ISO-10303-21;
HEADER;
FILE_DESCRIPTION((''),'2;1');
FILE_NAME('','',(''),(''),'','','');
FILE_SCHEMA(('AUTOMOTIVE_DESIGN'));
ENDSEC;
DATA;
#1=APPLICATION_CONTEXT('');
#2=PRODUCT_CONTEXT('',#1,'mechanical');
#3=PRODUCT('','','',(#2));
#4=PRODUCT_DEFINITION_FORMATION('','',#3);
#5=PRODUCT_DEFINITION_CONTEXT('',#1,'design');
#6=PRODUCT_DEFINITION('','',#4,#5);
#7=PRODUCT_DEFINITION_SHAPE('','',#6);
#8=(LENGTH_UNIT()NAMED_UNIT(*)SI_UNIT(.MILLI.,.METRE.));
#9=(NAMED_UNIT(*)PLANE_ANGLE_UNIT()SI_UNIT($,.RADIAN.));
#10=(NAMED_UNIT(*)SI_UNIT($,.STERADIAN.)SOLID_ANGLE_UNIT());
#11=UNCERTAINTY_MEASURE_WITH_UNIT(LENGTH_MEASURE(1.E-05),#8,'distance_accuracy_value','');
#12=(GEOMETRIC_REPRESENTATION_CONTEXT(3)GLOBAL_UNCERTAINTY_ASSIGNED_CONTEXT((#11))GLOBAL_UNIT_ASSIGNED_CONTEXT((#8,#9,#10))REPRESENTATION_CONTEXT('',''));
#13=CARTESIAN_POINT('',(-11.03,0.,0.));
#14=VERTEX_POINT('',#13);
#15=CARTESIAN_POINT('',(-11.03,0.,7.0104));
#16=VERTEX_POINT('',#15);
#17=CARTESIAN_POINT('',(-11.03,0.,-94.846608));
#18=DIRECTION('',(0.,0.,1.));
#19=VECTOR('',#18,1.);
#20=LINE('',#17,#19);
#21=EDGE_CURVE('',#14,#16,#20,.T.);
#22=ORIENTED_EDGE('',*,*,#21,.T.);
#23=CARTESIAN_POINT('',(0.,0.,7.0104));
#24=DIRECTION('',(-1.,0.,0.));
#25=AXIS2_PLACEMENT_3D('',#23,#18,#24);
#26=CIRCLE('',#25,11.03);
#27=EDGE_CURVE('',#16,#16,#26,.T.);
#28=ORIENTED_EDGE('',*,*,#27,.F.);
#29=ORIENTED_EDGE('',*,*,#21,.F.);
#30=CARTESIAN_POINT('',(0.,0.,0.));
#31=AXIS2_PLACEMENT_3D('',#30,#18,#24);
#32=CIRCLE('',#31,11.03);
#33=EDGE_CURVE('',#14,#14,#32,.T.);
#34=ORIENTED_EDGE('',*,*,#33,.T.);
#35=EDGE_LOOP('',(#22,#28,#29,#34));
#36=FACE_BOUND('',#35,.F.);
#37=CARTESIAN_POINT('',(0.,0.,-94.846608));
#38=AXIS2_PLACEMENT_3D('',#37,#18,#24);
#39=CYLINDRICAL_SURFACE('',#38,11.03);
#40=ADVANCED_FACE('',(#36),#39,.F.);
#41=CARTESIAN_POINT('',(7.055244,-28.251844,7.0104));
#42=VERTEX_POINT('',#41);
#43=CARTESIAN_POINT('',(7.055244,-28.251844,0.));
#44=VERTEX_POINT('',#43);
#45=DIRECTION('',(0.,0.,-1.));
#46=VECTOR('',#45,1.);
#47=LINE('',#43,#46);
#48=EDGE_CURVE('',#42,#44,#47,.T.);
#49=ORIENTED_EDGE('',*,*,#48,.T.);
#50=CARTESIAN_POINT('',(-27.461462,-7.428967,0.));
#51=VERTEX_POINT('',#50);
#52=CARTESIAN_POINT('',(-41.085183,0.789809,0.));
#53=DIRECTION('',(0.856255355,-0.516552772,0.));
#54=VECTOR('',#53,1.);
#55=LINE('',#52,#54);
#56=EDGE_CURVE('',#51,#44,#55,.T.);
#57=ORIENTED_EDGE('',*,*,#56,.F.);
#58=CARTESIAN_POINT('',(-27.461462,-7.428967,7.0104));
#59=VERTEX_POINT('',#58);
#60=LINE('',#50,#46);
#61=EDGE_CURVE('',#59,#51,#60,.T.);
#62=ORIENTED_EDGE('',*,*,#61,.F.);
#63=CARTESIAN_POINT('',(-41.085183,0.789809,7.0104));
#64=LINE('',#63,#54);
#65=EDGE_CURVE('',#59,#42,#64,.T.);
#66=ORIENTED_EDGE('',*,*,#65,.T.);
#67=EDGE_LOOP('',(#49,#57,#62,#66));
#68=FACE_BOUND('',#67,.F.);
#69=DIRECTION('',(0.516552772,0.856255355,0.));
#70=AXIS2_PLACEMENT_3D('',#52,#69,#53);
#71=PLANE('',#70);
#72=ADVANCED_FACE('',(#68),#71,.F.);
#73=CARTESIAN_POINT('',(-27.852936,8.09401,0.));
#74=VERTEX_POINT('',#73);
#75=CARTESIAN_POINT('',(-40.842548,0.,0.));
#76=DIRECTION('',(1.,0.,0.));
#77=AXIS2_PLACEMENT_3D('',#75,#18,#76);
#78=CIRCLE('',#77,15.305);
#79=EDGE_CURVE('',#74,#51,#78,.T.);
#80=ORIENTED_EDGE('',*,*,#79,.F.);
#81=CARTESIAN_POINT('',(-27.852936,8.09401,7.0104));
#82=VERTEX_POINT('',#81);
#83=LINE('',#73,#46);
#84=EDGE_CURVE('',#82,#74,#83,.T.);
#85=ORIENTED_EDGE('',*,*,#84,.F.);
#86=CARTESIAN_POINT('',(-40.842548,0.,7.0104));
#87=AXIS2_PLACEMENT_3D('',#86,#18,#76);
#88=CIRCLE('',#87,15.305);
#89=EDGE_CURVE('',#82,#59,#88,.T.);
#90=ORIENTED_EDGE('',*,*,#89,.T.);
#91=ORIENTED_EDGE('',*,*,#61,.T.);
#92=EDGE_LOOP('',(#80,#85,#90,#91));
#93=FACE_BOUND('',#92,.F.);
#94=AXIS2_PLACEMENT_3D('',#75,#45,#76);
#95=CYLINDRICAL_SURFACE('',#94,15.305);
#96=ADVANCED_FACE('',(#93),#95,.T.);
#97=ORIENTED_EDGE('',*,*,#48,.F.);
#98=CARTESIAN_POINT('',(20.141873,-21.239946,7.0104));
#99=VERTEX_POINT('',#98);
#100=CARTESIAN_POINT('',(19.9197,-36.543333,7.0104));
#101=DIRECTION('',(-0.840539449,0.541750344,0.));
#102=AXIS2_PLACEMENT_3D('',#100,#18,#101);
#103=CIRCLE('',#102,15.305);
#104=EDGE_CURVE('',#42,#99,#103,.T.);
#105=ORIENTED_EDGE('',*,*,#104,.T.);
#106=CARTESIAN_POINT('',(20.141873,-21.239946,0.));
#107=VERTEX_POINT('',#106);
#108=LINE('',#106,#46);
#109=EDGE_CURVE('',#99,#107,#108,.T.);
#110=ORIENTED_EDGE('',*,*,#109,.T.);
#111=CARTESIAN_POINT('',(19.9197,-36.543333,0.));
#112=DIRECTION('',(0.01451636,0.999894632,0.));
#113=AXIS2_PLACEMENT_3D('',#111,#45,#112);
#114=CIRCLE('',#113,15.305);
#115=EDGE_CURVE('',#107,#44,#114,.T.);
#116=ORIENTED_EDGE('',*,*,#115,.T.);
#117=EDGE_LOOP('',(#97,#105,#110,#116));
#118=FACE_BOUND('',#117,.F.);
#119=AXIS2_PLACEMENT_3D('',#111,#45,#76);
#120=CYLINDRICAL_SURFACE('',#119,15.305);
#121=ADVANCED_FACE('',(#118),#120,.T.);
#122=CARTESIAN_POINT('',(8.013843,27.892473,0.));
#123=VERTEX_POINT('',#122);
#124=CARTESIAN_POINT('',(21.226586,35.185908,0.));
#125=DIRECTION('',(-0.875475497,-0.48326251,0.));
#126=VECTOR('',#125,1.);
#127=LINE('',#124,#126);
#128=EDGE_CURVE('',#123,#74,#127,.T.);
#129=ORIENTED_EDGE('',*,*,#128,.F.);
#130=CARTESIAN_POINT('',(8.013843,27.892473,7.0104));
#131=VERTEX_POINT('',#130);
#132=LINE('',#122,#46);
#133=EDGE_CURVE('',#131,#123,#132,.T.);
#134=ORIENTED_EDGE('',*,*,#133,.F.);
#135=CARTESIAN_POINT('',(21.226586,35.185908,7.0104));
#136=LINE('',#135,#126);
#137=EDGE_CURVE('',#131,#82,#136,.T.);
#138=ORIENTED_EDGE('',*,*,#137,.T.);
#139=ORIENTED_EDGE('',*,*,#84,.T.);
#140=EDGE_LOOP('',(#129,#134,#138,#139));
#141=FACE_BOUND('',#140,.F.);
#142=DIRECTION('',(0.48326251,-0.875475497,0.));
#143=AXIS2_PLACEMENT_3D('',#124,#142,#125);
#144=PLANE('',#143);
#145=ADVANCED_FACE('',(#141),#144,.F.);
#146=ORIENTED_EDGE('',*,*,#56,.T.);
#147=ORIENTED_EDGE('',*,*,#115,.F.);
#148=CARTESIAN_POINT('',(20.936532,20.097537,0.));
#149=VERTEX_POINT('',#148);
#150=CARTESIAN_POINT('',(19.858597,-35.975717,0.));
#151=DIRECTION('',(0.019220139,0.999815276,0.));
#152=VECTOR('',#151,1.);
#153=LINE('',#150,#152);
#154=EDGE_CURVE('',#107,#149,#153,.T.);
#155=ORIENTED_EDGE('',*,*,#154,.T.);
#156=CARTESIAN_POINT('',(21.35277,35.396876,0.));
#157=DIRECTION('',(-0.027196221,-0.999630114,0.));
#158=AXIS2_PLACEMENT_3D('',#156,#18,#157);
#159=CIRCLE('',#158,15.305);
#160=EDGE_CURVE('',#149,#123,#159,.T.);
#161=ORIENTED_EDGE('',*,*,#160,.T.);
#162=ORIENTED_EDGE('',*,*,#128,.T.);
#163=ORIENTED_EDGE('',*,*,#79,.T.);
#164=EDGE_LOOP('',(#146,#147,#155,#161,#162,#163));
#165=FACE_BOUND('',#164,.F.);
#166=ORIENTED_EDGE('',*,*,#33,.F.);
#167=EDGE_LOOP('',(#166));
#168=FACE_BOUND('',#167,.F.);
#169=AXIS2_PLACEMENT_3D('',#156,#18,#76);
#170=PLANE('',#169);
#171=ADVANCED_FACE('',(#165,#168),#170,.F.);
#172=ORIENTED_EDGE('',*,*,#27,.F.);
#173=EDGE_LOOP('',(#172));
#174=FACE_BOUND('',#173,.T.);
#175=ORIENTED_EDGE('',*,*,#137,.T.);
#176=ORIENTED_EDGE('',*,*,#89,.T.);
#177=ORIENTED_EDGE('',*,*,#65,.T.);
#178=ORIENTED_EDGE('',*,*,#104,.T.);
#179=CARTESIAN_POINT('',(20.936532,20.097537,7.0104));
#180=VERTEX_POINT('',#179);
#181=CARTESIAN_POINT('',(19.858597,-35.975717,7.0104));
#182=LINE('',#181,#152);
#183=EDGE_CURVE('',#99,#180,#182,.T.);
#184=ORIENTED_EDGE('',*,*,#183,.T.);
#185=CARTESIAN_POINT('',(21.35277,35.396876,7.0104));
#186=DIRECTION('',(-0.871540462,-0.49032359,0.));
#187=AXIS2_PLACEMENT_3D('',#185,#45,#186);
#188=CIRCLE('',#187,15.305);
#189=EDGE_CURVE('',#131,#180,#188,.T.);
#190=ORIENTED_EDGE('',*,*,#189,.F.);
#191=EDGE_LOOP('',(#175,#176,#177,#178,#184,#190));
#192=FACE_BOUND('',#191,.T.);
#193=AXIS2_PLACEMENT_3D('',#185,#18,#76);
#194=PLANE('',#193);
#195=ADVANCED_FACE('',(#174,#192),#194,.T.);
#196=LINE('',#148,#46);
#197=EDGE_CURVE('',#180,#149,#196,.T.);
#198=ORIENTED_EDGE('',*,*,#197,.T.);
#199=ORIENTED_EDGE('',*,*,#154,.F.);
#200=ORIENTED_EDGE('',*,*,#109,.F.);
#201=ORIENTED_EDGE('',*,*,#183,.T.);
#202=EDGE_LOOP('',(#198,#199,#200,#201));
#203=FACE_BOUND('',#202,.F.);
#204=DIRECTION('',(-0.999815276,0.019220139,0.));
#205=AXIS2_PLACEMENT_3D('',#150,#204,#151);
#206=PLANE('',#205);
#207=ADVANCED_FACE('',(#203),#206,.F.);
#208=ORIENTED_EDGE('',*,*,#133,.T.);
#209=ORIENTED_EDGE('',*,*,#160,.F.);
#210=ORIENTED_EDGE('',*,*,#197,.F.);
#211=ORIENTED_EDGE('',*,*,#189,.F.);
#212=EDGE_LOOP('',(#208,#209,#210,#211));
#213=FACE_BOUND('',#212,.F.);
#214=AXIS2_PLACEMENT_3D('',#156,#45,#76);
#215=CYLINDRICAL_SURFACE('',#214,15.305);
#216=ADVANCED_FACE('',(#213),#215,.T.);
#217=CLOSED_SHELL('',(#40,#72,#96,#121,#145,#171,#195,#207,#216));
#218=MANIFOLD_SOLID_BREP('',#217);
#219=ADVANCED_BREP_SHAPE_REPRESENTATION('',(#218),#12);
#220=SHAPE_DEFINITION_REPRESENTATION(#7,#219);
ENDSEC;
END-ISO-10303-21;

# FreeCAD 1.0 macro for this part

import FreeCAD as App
import Part
import Sketcher

V = App.Vector

doc = App.newDocument("Part")
params = doc.addObject("Spreadsheet::Sheet", "Params")
for row, (alias, value) in enumerate([
    ("pad1_length", "0.276 in"),
    ("hole_diameter", "22.06 mm"),
    ("pad2_length", "0.276 in"),
], start=1):
    params.set(f"A{row}", alias)
    params.set(f"B{row}", "=" + value)
    params.setAlias(f"B{row}", alias)

body = doc.addObject("PartDesign::Body", "Body")

# Sketch on XY plane
sketch1 = body.newObject("Sketcher::SketchObject", "Sketch")
sketch1.AttachmentSupport = (doc.getObject("XY_Plane"), [""])
sketch1.MapMode = "FlatFace"
sketch1.addGeometry(Part.LineSegment(V(21, 35, 0), V(-41, 1, 0)), False)
sketch1.addGeometry(Part.LineSegment(V(-41, 1, 0), V(20, -36, 0)), False)
sketch1.addGeometry(Part.LineSegment(V(20, -36, 0), V(21, 35, 0)), False)
sketch1.addConstraint(Sketcher.Constraint("Coincident", 0, 2, 1, 1))
sketch1.addConstraint(Sketcher.Constraint("Coincident", 1, 2, 2, 1))
sketch1.addConstraint(Sketcher.Constraint("Coincident", 2, 2, 0, 1))
sketch1.addConstraint(Sketcher.Constraint("Equal", 0, 1))
sketch1.addConstraint(Sketcher.Constraint("Equal", 1, 2))
sketch1.addConstraint(Sketcher.Constraint("DistanceY", 0, 2, 2, 2, 34.396099))
sketch1.addConstraint(Sketcher.Constraint("DistanceY", -1, 1, 0, 2, 0.789809))
sketch1.addConstraint(Sketcher.Constraint("DistanceX", 0, 2, 1, 2, 60.94378))
sketch1.addConstraint(Sketcher.Constraint("DistanceX", 0, 2, -1, 1, 41.085183))
pad1 = body.newObject("PartDesign::Pad", "Pad")
pad1.Profile = sketch1
pad1.setExpression("Length", "Params.pad1_length")

# Sketch on XY plane
sketch2 = body.newObject("Sketcher::SketchObject", "Sketch001")
sketch2.AttachmentSupport = (doc.getObject("XY_Plane"), [""])
sketch2.MapMode = "FlatFace"
sketch2.addGeometry(Part.Circle(V(0, 0, 0), V(0, 0, 1), 11), False)
sketch2.addConstraint(Sketcher.Constraint("Coincident", 0, 3, -1, 1))
sketch2.addConstraint(Sketcher.Constraint("Diameter", 0, 22.06))
doc.recompute()
hole = body.newObject("PartDesign::Hole", "Hole")
hole.Profile = sketch2
hole.ThreadType = "None"
hole.setExpression("Diameter", "Params.hole_diameter")
hole.DepthType = "ThroughAll"
hole.Reversed = True

# Sketch on XY plane
sketch3 = body.newObject("Sketcher::SketchObject", "Sketch002")
sketch3.AttachmentSupport = (doc.getObject("XY_Plane"), [""])
sketch3.MapMode = "FlatFace"
sketch3.addGeometry(Part.Circle(V(21, 35, 0), V(0, 0, 1), 15), False)
sketch3.addGeometry(Part.Circle(V(-41, 0, 0), V(0, 0, 1), 15), False)
sketch3.addGeometry(Part.Circle(V(20, -37, 0), V(0, 0, 1), 15), False)
sketch3.addConstraint(Sketcher.Constraint("Equal", 0, 1))
sketch3.addConstraint(Sketcher.Constraint("Equal", 1, 2))
sketch3.addConstraint(Sketcher.Constraint("PointOnObject", 1, 3, -1))
sketch3.addConstraint(Sketcher.Constraint("Diameter", 0, 30.61))
sketch3.addConstraint(Sketcher.Constraint("DistanceX", -1, 1, 2, 3, 19.9197))
sketch3.addConstraint(Sketcher.Constraint("DistanceX", -1, 1, 0, 3, 21.35277))
sketch3.addConstraint(Sketcher.Constraint("DistanceY", 2, 3, 0, 3, 71.940209))
sketch3.addConstraint(Sketcher.Constraint("DistanceY", -1, 1, 0, 3, 35.396876))
sketch3.addConstraint(Sketcher.Constraint("DistanceX", 1, 3, -1, 1, 40.842548))
pad2 = body.newObject("PartDesign::Pad", "Pad001")
pad2.Profile = sketch3
pad2.setExpression("Length", "Params.pad2_length")

doc.recompute()
